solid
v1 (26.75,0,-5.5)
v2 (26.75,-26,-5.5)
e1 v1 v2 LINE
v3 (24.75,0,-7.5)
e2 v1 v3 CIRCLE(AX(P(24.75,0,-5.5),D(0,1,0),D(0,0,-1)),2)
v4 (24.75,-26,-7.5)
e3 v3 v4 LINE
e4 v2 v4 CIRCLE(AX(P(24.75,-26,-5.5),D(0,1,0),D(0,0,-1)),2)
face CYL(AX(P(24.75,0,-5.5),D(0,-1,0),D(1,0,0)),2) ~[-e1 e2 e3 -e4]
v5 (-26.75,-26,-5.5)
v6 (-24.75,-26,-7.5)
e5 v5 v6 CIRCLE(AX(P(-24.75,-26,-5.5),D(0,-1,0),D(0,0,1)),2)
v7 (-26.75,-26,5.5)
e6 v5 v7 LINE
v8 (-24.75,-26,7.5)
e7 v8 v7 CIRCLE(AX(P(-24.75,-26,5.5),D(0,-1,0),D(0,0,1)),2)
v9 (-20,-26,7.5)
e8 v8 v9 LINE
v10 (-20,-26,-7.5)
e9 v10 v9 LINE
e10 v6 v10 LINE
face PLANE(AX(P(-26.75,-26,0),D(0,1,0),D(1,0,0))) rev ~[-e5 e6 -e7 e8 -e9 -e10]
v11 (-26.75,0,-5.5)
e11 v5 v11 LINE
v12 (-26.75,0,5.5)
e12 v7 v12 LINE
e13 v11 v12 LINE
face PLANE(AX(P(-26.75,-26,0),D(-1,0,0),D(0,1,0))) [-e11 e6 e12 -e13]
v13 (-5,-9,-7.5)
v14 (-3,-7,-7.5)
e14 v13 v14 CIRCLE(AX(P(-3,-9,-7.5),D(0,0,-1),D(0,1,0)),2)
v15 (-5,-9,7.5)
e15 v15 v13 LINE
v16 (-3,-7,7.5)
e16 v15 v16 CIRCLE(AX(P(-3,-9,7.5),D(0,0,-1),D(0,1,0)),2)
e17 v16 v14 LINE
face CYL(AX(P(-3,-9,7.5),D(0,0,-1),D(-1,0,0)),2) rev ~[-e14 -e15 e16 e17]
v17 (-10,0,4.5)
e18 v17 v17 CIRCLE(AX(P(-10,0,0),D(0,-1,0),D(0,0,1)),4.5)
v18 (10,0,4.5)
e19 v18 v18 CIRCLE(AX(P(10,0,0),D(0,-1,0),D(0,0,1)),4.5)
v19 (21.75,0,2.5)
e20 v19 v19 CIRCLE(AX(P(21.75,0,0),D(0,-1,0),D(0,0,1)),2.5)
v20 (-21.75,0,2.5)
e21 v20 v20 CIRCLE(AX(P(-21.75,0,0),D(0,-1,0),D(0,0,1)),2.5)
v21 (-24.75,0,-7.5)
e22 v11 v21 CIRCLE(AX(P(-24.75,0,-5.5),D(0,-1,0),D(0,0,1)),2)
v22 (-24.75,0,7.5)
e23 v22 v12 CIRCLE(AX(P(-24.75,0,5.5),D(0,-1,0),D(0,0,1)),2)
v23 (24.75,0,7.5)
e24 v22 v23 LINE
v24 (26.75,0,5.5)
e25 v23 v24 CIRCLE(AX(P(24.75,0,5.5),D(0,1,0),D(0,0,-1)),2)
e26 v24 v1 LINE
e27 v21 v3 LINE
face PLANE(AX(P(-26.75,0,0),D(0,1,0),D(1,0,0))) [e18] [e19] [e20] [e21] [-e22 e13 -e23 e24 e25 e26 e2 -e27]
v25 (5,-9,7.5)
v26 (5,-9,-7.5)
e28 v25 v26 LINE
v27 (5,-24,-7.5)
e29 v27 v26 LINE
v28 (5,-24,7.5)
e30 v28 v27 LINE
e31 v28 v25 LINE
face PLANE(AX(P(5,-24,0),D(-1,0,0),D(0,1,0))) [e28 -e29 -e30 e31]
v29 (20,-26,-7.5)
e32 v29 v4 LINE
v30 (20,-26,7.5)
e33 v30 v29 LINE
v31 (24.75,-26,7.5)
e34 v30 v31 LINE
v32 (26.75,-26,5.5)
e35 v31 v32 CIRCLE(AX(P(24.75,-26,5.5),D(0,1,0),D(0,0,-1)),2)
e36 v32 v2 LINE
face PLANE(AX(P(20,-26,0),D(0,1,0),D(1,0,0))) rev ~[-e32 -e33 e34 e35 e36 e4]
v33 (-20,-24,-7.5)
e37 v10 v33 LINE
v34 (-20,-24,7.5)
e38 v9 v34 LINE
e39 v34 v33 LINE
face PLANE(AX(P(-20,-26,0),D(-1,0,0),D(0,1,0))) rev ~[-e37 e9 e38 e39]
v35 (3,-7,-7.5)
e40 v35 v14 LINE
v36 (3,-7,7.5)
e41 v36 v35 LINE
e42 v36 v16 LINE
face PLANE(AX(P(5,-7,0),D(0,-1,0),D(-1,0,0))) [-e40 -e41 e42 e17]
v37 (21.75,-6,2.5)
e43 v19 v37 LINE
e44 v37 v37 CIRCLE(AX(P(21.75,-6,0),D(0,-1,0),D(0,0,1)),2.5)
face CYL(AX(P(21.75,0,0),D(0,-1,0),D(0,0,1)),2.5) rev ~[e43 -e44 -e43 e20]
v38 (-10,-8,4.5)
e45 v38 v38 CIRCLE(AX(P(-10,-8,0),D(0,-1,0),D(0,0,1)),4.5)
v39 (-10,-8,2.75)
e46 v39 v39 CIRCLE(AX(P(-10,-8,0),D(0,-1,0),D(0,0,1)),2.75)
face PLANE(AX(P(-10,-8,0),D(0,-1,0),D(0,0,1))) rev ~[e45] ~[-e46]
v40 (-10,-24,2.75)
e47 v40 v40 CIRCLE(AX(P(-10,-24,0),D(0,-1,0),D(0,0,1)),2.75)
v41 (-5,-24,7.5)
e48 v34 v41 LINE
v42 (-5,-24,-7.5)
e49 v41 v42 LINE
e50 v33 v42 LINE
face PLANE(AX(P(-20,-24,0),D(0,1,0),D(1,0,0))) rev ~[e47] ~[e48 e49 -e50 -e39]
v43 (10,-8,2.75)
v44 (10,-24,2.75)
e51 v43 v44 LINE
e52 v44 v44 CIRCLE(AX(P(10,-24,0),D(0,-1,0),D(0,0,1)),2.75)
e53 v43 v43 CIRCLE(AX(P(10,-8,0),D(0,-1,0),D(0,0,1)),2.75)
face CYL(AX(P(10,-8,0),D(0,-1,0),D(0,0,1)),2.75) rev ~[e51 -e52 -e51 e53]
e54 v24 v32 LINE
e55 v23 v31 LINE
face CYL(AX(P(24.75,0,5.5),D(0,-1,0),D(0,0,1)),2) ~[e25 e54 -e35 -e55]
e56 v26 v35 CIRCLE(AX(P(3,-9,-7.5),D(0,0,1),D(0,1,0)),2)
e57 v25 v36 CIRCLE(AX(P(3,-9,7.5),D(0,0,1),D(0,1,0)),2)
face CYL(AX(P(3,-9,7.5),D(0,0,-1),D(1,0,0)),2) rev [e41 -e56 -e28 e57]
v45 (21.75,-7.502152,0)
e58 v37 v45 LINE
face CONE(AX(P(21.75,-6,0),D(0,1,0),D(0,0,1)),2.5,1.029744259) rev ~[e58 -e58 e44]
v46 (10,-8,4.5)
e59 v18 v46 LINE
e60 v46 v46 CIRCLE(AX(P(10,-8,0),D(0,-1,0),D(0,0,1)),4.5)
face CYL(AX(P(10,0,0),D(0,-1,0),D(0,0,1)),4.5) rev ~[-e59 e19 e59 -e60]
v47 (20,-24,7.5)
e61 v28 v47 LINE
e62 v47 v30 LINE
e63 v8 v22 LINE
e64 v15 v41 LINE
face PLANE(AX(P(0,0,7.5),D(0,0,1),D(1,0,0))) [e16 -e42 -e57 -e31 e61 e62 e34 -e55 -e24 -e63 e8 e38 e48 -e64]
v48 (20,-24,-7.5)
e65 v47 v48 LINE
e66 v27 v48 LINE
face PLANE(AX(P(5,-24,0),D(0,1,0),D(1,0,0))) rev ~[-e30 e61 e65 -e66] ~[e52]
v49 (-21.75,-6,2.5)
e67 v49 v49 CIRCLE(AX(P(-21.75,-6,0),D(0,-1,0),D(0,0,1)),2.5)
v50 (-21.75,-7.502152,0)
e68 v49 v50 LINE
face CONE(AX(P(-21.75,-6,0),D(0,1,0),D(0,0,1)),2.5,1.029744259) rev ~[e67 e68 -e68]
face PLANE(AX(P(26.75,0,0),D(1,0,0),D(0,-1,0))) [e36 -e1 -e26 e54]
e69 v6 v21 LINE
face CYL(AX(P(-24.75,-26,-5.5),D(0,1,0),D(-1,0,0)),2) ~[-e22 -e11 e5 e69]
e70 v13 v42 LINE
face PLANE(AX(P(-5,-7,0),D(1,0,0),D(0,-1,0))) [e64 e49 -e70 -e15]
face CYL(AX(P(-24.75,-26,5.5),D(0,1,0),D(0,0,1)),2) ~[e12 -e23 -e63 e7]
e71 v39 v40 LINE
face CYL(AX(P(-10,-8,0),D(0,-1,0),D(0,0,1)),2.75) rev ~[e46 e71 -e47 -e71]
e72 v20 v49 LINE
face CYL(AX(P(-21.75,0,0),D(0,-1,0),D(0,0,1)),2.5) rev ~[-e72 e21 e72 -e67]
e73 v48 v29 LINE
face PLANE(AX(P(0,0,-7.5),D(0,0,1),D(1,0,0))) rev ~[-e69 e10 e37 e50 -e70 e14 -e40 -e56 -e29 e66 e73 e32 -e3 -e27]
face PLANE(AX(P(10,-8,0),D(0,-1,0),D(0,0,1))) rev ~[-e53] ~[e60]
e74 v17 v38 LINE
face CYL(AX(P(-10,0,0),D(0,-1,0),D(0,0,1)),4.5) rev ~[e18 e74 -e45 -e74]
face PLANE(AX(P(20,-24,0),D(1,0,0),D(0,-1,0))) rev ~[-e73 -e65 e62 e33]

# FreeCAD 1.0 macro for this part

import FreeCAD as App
import Part
import Sketcher
Q = App.Units.Quantity


def edges_at(feature, points):
    """Names of the edges that pass closest to the given points."""
    edges = feature.Shape.Edges
    near = lambda p: min(range(len(edges)), key=lambda i: edges[i].distToShape(Part.Vertex(*p))[0])
    return sorted({f"Edge{near(p) + 1}" for p in points})

doc = App.newDocument("Part")
params = doc.addObject("Spreadsheet::Sheet", "Params")
for row, (alias, value) in enumerate([
    ("sketch1_width", "10 mm"),
    ("sketch1_height", "2 mm"),
    ("sketch1_height2", "17 mm"),
    ("sketch1_width2", "53.5 mm"),
    ("pad1_length", "15 mm"),
    ("sketch2_diameter", "5.5 mm"),
    ("hole_diameter", "5.5 mm"),
    ("hole_cbore_diameter", "9 mm"),
    ("hole_cbore_depth", "8 mm"),
    ("sketch3_diameter", "5 mm"),
    ("hole2_diameter", "5 mm"),
    ("hole2_depth", "6 mm"),
    ("fillet_radius", "2 mm"),
    ("fillet2_radius", "2 mm"),
], start=1):
    params.set(f"A{row}", alias)
    params.set(f"B{row}", "=" + value)
    params.setAlias(f"B{row}", alias)

body = doc.addObject("PartDesign::Body", "Body")

sketch1 = body.newObject("Sketcher::SketchObject", "Sketch")
sketch1.AttachmentSupport = (doc.getObject("XY_Plane"), [""])
sketch1.MapMode = "FlatFace"
sketch1.addGeometry(Part.LineSegment(App.Vector(26.8, 0, 0), App.Vector(-26.8, 0, 0)), False)
sketch1.addGeometry(Part.LineSegment(App.Vector(-26.8, 0, 0), App.Vector(-26.8, -26, 0)), False)
sketch1.addGeometry(Part.LineSegment(App.Vector(-26.8, -26, 0), App.Vector(-20, -26, 0)), False)
sketch1.addGeometry(Part.LineSegment(App.Vector(-20, -26, 0), App.Vector(-20, -24, 0)), False)
sketch1.addGeometry(Part.LineSegment(App.Vector(-20, -24, 0), App.Vector(-5, -24, 0)), False)
sketch1.addGeometry(Part.LineSegment(App.Vector(-5, -24, 0), App.Vector(-5, -7, 0)), False)
sketch1.addGeometry(Part.LineSegment(App.Vector(-5, -7, 0), App.Vector(5, -7, 0)), False)
sketch1.addGeometry(Part.LineSegment(App.Vector(5, -7, 0), App.Vector(5, -24, 0)), False)
sketch1.addGeometry(Part.LineSegment(App.Vector(5, -24, 0), App.Vector(20, -24, 0)), False)
sketch1.addGeometry(Part.LineSegment(App.Vector(20, -24, 0), App.Vector(20, -26, 0)), False)
sketch1.addGeometry(Part.LineSegment(App.Vector(20, -26, 0), App.Vector(26.8, -26, 0)), False)
sketch1.addGeometry(Part.LineSegment(App.Vector(26.8, -26, 0), App.Vector(26.8, 0, 0)), False)
sketch1.addConstraint(Sketcher.Constraint("Coincident", 0, 2, 1, 1))
sketch1.addConstraint(Sketcher.Constraint("Coincident", 1, 2, 2, 1))
sketch1.addConstraint(Sketcher.Constraint("Coincident", 2, 2, 3, 1))
sketch1.addConstraint(Sketcher.Constraint("Coincident", 3, 2, 4, 1))
sketch1.addConstraint(Sketcher.Constraint("Coincident", 4, 2, 5, 1))
sketch1.addConstraint(Sketcher.Constraint("Coincident", 5, 2, 6, 1))
sketch1.addConstraint(Sketcher.Constraint("Coincident", 6, 2, 7, 1))
sketch1.addConstraint(Sketcher.Constraint("Coincident", 7, 2, 8, 1))
sketch1.addConstraint(Sketcher.Constraint("Coincident", 8, 2, 9, 1))
sketch1.addConstraint(Sketcher.Constraint("Coincident", 9, 2, 10, 1))
sketch1.addConstraint(Sketcher.Constraint("Coincident", 10, 2, 11, 1))
sketch1.addConstraint(Sketcher.Constraint("Coincident", 11, 2, 0, 1))
sketch1.addConstraint(Sketcher.Constraint("Horizontal", 0))
sketch1.addConstraint(Sketcher.Constraint("Vertical", 1))
sketch1.addConstraint(Sketcher.Constraint("Horizontal", 2))
sketch1.addConstraint(Sketcher.Constraint("Vertical", 3))
sketch1.addConstraint(Sketcher.Constraint("Horizontal", 4))
sketch1.addConstraint(Sketcher.Constraint("Vertical", 5))
sketch1.addConstraint(Sketcher.Constraint("Horizontal", 6))
sketch1.addConstraint(Sketcher.Constraint("Vertical", 7))
sketch1.addConstraint(Sketcher.Constraint("Horizontal", 8))
sketch1.addConstraint(Sketcher.Constraint("Vertical", 9))
sketch1.addConstraint(Sketcher.Constraint("Horizontal", 10))
sketch1.addConstraint(Sketcher.Constraint("Vertical", 11))
sketch1.addConstraint(Sketcher.Constraint("Symmetric", 0, 2, 11, 2, -1, 1))
sketch1.addConstraint(Sketcher.Constraint("Symmetric", 4, 2, 7, 2, -2))
sketch1.addConstraint(Sketcher.Constraint("Symmetric", 2, 2, 9, 2, -2))
sketch1.addConstraint(Sketcher.Constraint("DistanceX", 6, 1, 6, 2, Q("10 mm")))
sketch1.addConstraint(Sketcher.Constraint("DistanceY", 3, 1, 3, 2, Q("2 mm")))
sketch1.addConstraint(Sketcher.Constraint("DistanceY", 5, 1, 5, 2, Q("17 mm")))
sketch1.addConstraint(Sketcher.Constraint("DistanceX", 0, 2, 0, 1, Q("53.5 mm")))
sketch1.addConstraint(Sketcher.Constraint("DistanceX", 2, 2, -1, 1, Q("20 mm")))
sketch1.addConstraint(Sketcher.Constraint("DistanceY", 3, 2, -1, 1, Q("24 mm")))
sketch1.setExpression("Constraints[27]", "Params.sketch1_width")
sketch1.setExpression("Constraints[28]", "Params.sketch1_height")
sketch1.setExpression("Constraints[29]", "Params.sketch1_height2")
sketch1.setExpression("Constraints[30]", "Params.sketch1_width2")
pad1 = body.newObject("PartDesign::Pad", "Pad")
pad1.Profile = sketch1
pad1.setExpression("Length", "Params.pad1_length")
pad1.Midplane = True

sketch2 = body.newObject("Sketcher::SketchObject", "Sketch001")
sketch2.AttachmentSupport = (doc.getObject("XZ_Plane"), [""])
sketch2.MapMode = "FlatFace"
sketch2.addGeometry(Part.Circle(App.Vector(-10, 0, 0), App.Vector(0, 0, 1), 2.8), False)
sketch2.addGeometry(Part.Circle(App.Vector(10, 0, 0), App.Vector(0, 0, 1), 2.8), False)
sketch2.addConstraint(Sketcher.Constraint("Equal", 0, 1))
sketch2.addConstraint(Sketcher.Constraint("Symmetric", 0, 3, 1, 3, -1, 1))
sketch2.addConstraint(Sketcher.Constraint("PointOnObject", 0, 3, -1))
sketch2.addConstraint(Sketcher.Constraint("Diameter", 0, Q("5.5 mm")))
sketch2.addConstraint(Sketcher.Constraint("DistanceX", 0, 3, -1, 1, Q("10 mm")))
sketch2.setExpression("Constraints[3]", "Params.sketch2_diameter")
doc.recompute()
hole = body.newObject("PartDesign::Hole", "Hole")
hole.Profile = sketch2
hole.ThreadType = "None"
hole.setExpression("Diameter", "Params.hole_diameter")
hole.DepthType = "ThroughAll"
hole.HoleCutType = "Counterbore"
hole.setExpression("HoleCutDiameter", "Params.hole_cbore_diameter")
hole.setExpression("HoleCutDepth", "Params.hole_cbore_depth")
hole.Reversed = True

sketch3 = body.newObject("Sketcher::SketchObject", "Sketch002")
sketch3.AttachmentSupport = (doc.getObject("XZ_Plane"), [""])
sketch3.MapMode = "FlatFace"
sketch3.addGeometry(Part.Circle(App.Vector(-21.8, 0, 0), App.Vector(0, 0, 1), 2.5), False)
sketch3.addGeometry(Part.Circle(App.Vector(21.8, 0, 0), App.Vector(0, 0, 1), 2.5), False)
sketch3.addConstraint(Sketcher.Constraint("Equal", 0, 1))
sketch3.addConstraint(Sketcher.Constraint("Symmetric", 0, 3, 1, 3, -1, 1))
sketch3.addConstraint(Sketcher.Constraint("PointOnObject", 0, 3, -1))
sketch3.addConstraint(Sketcher.Constraint("Diameter", 0, Q("5 mm")))
sketch3.addConstraint(Sketcher.Constraint("DistanceX", 0, 3, 1, 3, Q("43.5 mm")))
sketch3.setExpression("Constraints[3]", "Params.sketch3_diameter")
doc.recompute()
hole2 = body.newObject("PartDesign::Hole", "Hole001")
hole2.Profile = sketch3
hole2.ThreadType = "None"
hole2.setExpression("Diameter", "Params.hole2_diameter")
hole2.DepthType = "Dimension"
hole2.setExpression("Depth", "Params.hole2_depth")
hole2.DrillPoint = "Angled"
hole2.DrillPointAngle = 118
hole2.Reversed = True
doc.recompute()

fillet = body.newObject("PartDesign::Fillet", "Fillet")
fillet.Base = (hole2, edges_at(hole2, [
    (-26.75, -13, -7.5),
    (-26.75, -13, 7.5),
    (26.75, -13, -7.5),
    (26.75, -13, 7.5),
]))
fillet.setExpression("Radius", "Params.fillet_radius")
doc.recompute()

fillet2 = body.newObject("PartDesign::Fillet", "Fillet001")
fillet2.Base = (fillet, edges_at(fillet, [(5, -7, 0), (-5, -7, 0)]))
fillet2.setExpression("Radius", "Params.fillet2_radius")

doc.recompute()
